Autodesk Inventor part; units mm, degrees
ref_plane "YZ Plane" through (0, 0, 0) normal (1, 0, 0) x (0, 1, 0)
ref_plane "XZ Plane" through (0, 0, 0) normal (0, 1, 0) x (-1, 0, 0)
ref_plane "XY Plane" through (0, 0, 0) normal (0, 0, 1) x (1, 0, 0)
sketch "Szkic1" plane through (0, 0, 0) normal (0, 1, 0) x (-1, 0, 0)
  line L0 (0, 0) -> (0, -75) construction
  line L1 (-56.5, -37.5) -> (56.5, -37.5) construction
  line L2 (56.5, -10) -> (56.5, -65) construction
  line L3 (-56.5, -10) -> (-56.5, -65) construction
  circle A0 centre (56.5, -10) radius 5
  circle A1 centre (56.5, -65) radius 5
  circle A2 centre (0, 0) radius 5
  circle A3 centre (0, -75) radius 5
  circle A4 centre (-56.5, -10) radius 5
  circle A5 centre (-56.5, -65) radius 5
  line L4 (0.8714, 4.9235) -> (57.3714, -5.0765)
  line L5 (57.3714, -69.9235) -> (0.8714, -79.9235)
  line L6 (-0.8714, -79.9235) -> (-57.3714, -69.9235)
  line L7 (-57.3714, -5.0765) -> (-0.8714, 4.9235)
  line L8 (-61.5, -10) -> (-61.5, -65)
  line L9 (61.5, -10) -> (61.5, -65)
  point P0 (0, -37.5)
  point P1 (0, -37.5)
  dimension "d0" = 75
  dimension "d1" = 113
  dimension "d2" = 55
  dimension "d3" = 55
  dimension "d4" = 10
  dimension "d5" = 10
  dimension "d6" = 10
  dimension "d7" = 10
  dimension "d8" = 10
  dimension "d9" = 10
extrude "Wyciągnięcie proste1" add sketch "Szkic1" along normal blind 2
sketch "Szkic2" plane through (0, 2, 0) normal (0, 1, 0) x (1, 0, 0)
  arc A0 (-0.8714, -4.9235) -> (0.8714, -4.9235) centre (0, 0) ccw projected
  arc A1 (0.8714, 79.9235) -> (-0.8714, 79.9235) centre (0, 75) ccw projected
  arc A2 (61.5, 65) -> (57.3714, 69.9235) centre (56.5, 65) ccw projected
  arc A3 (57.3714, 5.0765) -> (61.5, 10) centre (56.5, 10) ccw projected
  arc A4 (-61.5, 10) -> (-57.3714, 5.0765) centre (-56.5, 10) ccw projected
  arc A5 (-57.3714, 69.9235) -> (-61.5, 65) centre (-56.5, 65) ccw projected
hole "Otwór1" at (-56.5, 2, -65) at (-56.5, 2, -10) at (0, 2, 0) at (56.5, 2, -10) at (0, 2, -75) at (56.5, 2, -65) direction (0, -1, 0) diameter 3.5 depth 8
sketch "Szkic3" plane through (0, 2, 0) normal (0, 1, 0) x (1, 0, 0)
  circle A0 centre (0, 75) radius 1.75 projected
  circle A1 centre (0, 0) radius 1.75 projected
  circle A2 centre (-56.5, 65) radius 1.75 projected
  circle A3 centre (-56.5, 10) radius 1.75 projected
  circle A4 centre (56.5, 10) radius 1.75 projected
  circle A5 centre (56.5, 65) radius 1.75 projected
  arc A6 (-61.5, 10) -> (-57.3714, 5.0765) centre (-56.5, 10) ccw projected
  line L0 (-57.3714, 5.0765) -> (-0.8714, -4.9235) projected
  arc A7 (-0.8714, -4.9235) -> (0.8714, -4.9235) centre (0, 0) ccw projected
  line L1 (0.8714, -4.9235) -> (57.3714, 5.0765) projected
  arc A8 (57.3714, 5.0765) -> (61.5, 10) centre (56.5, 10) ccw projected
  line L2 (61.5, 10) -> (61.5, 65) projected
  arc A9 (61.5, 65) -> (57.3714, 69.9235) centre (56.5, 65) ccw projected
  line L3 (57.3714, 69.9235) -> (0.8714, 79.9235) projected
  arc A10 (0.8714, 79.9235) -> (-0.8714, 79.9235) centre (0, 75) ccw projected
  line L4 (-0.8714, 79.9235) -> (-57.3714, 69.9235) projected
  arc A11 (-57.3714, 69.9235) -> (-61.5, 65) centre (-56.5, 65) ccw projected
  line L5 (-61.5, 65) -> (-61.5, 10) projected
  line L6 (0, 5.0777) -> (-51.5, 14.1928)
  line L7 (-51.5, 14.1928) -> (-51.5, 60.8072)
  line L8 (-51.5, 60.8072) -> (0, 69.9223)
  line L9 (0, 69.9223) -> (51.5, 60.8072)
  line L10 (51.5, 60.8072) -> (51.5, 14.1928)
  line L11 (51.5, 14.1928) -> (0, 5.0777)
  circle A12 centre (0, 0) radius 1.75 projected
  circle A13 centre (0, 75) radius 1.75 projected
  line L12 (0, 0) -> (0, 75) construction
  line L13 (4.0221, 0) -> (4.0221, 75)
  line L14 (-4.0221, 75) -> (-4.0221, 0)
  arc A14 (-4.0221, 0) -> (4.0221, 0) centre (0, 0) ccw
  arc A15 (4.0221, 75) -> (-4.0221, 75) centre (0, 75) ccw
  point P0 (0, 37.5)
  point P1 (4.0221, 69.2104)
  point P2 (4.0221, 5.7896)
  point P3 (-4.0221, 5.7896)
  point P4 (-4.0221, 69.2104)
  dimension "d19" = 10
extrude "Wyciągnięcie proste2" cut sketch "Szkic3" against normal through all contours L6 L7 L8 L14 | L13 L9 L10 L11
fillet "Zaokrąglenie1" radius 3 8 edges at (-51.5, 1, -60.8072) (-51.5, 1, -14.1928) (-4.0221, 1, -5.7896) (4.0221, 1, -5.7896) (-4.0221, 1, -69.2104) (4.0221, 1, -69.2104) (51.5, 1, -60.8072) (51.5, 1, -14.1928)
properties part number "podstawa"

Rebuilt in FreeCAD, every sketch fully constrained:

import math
import FreeCAD as App
import Part
import Sketcher
from FreeCAD import Vector
Q = App.Units.Quantity


def edges_at(feature, points):
    """Names of the edges that pass closest to the given points."""
    edges = feature.Shape.Edges
    near = lambda p: min(range(len(edges)), key=lambda i: edges[i].distToShape(Part.Vertex(*p))[0])
    return sorted({f"Edge{near(p) + 1}" for p in points})

doc = App.newDocument("Part")
params = doc.addObject("Spreadsheet::Sheet", "Params")
for row, (alias, value) in enumerate([
    ("sketch1_radius", "5 mm"),
    ("sketch1_height", "55 mm"),
    ("pad1_length", "2 mm"),
    ("sketch2_diameter", "3.5 mm"),
    ("hole_diameter", "3.5 mm"),
    ("hole_depth", "8 mm"),
    ("fillet_radius", "3 mm"),
], start=1):
    params.set(f"A{row}", alias)
    params.set(f"B{row}", "=" + value)
    params.setAlias(f"B{row}", alias)

body = doc.addObject("PartDesign::Body", "Body")

# Sketch on XZ plane
sketch1 = body.newObject("Sketcher::SketchObject", "Sketch")
sketch1.AttachmentSupport = (doc.getObject("XZ_Plane"), [""])
sketch1.MapMode = "FlatFace"
sketch1.addGeometry(Part.ArcOfCircle(Part.Circle(Vector(-56.5, -10, 0), Vector(0, 0, 1), 5), math.radians(100.036723), math.radians(180)), False)
sketch1.addGeometry(Part.LineSegment(Vector(-57.3714, -5.0765, 0), Vector(-0.8714, 4.9235, 0)), False)
sketch1.addGeometry(Part.ArcOfCircle(Part.Circle(Vector(0, 0, 0), Vector(0, 0, 1), 5), math.radians(79.963277), math.radians(100.036723)), False)
sketch1.addGeometry(Part.LineSegment(Vector(0.8714, 4.9235, 0), Vector(57.3714, -5.0765, 0)), False)
sketch1.addGeometry(Part.ArcOfCircle(Part.Circle(Vector(56.5, -10, 0), Vector(0, 0, 1), 5), math.radians(0), math.radians(79.963277)), False)
sketch1.addGeometry(Part.LineSegment(Vector(61.5, -10, 0), Vector(61.5, -65, 0)), False)
sketch1.addGeometry(Part.ArcOfCircle(Part.Circle(Vector(56.5, -65, 0), Vector(0, 0, 1), 5), math.radians(-79.963277), math.radians(0)), False)
sketch1.addGeometry(Part.LineSegment(Vector(57.3714, -69.9235, 0), Vector(0.8714, -79.9235, 0)), False)
sketch1.addGeometry(Part.ArcOfCircle(Part.Circle(Vector(0, -75, 0), Vector(0, 0, 1), 5), math.radians(-100.036723), math.radians(-79.963277)), False)
sketch1.addGeometry(Part.LineSegment(Vector(-0.8714, -79.9235, 0), Vector(-57.3714, -69.9235, 0)), False)
sketch1.addGeometry(Part.ArcOfCircle(Part.Circle(Vector(-56.5, -65, 0), Vector(0, 0, 1), 5), math.radians(180), math.radians(259.963277)), False)
sketch1.addGeometry(Part.LineSegment(Vector(-61.5, -65, 0), Vector(-61.5, -10, 0)), False)
sketch1.addConstraint(Sketcher.Constraint("Tangent", 0, 1, 1, 1))
sketch1.addConstraint(Sketcher.Constraint("Tangent", 1, 2, 2, 2))
sketch1.addConstraint(Sketcher.Constraint("Tangent", 2, 1, 3, 1))
sketch1.addConstraint(Sketcher.Constraint("Tangent", 3, 2, 4, 2))
sketch1.addConstraint(Sketcher.Constraint("Tangent", 4, 1, 5, 1))
sketch1.addConstraint(Sketcher.Constraint("Tangent", 5, 2, 6, 2))
sketch1.addConstraint(Sketcher.Constraint("Tangent", 6, 1, 7, 1))
sketch1.addConstraint(Sketcher.Constraint("Tangent", 7, 2, 8, 2))
sketch1.addConstraint(Sketcher.Constraint("Tangent", 8, 1, 9, 1))
sketch1.addConstraint(Sketcher.Constraint("Tangent", 9, 2, 10, 2))
sketch1.addConstraint(Sketcher.Constraint("Tangent", 10, 1, 11, 1))
sketch1.addConstraint(Sketcher.Constraint("Tangent", 11, 2, 0, 2))
sketch1.addConstraint(Sketcher.Constraint("Vertical", 5))
sketch1.addConstraint(Sketcher.Constraint("Vertical", 11))
sketch1.addConstraint(Sketcher.Constraint("Coincident", 2, 3, -1, 1))
sketch1.addConstraint(Sketcher.Constraint("Equal", 0, 2))
sketch1.addConstraint(Sketcher.Constraint("Equal", 2, 4))
sketch1.addConstraint(Sketcher.Constraint("Equal", 4, 6))
sketch1.addConstraint(Sketcher.Constraint("Equal", 6, 8))
sketch1.addConstraint(Sketcher.Constraint("Equal", 8, 10))
sketch1.addConstraint(Sketcher.Constraint("Symmetric", 0, 3, 4, 3, -2))
sketch1.addConstraint(Sketcher.Constraint("Symmetric", 7, 2, 8, 1, -2))
sketch1.addConstraint(Sketcher.Constraint("Parallel", 1, 7))
sketch1.addConstraint(Sketcher.Constraint("Radius", 0, Q("5 mm")))
sketch1.addConstraint(Sketcher.Constraint("DistanceY", 5, 2, 5, 1, Q("55 mm")))
sketch1.addConstraint(Sketcher.Constraint("DistanceY", 0, 3, -1, 1, Q("10 mm")))
sketch1.addConstraint(Sketcher.Constraint("DistanceX", 0, 3, 4, 3, Q("113 mm")))
sketch1.setExpression("Constraints[23]", "Params.sketch1_radius")
sketch1.setExpression("Constraints[24]", "Params.sketch1_height")
pad1 = body.newObject("PartDesign::Pad", "Pad")
pad1.Profile = sketch1
pad1.setExpression("Length", "Params.pad1_length")
pad1.Reversed = True

# Sketch on XZ plane
sketch2 = body.newObject("Sketcher::SketchObject", "Sketch001")
sketch2.AttachmentSupport = (doc.getObject("XZ_Plane"), [""])
sketch2.MapMode = "FlatFace"
sketch2.AttachmentOffset = App.Placement(Vector(0, 0, -2), App.Rotation())
sketch2.addGeometry(Part.Circle(Vector(-56.5, -65, 0), Vector(0, 0, 1), 1.75), False)
sketch2.addGeometry(Part.Circle(Vector(-56.5, -10, 0), Vector(0, 0, 1), 1.75), False)
sketch2.addGeometry(Part.Circle(Vector(0, 0, 0), Vector(0, 0, 1), 1.75), False)
sketch2.addGeometry(Part.Circle(Vector(56.5, -10, 0), Vector(0, 0, 1), 1.75), False)
sketch2.addGeometry(Part.Circle(Vector(0, -75, 0), Vector(0, 0, 1), 1.75), False)
sketch2.addGeometry(Part.Circle(Vector(56.5, -65, 0), Vector(0, 0, 1), 1.75), False)
sketch2.addConstraint(Sketcher.Constraint("Coincident", 2, 3, -1, 1))
sketch2.addConstraint(Sketcher.Constraint("Equal", 0, 1))
sketch2.addConstraint(Sketcher.Constraint("Equal", 1, 2))
sketch2.addConstraint(Sketcher.Constraint("Equal", 2, 3))
sketch2.addConstraint(Sketcher.Constraint("Equal", 3, 4))
sketch2.addConstraint(Sketcher.Constraint("Equal", 4, 5))
sketch2.addConstraint(Sketcher.Constraint("Symmetric", 1, 3, 3, 3, -2))
sketch2.addConstraint(Sketcher.Constraint("Symmetric", 0, 3, 5, 3, -2))
sketch2.addConstraint(Sketcher.Constraint("PointOnObject", 4, 3, -2))
sketch2.addConstraint(Sketcher.Constraint("Vertical", 0, 3, 1, 3))
sketch2.addConstraint(Sketcher.Constraint("Diameter", 0, Q("3.5 mm")))
sketch2.addConstraint(Sketcher.Constraint("DistanceY", 0, 3, -1, 1, Q("65 mm")))
sketch2.addConstraint(Sketcher.Constraint("DistanceY", 1, 3, -1, 1, Q("10 mm")))
sketch2.addConstraint(Sketcher.Constraint("DistanceY", 4, 3, -1, 1, Q("75 mm")))
sketch2.addConstraint(Sketcher.Constraint("DistanceX", 1, 3, 3, 3, Q("113 mm")))
sketch2.setExpression("Constraints[10]", "Params.sketch2_diameter")
doc.recompute()
hole = body.newObject("PartDesign::Hole", "Hole")
hole.Profile = sketch2
hole.ThreadType = "None"
hole.setExpression("Diameter", "Params.hole_diameter")
hole.DepthType = "Dimension"
hole.setExpression("Depth", "Params.hole_depth")
hole.DrillPoint = "Flat"
hole.Reversed = True

# Sketch on XZ plane
sketch3 = body.newObject("Sketcher::SketchObject", "Sketch002")
sketch3.AttachmentSupport = (doc.getObject("XZ_Plane"), [""])
sketch3.MapMode = "FlatFace"
sketch3.AttachmentOffset = App.Placement(Vector(0, 0, -2), App.Rotation())
sketch3.addGeometry(Part.LineSegment(Vector(-51.5, -14.1928, 0), Vector(-4.0221, -5.78958, 0)), False)
sketch3.addGeometry(Part.LineSegment(Vector(-4.0221, -5.78958, 0), Vector(-4.0221, -69.21042, 0)), False)
sketch3.addGeometry(Part.LineSegment(Vector(-4.0221, -69.21042, 0), Vector(-51.5, -60.8072, 0)), False)
sketch3.addGeometry(Part.LineSegment(Vector(-51.5, -60.8072, 0), Vector(-51.5, -14.1928, 0)), False)
sketch3.addGeometry(Part.LineSegment(Vector(4.0221, -69.21042, 0), Vector(4.0221, -5.78958, 0)), False)
sketch3.addGeometry(Part.LineSegment(Vector(4.0221, -5.78958, 0), Vector(51.5, -14.1928, 0)), False)
sketch3.addGeometry(Part.LineSegment(Vector(51.5, -14.1928, 0), Vector(51.5, -60.8072, 0)), False)
sketch3.addGeometry(Part.LineSegment(Vector(51.5, -60.8072, 0), Vector(4.0221, -69.21042, 0)), False)
sketch3.addConstraint(Sketcher.Constraint("Coincident", 0, 2, 1, 1))
sketch3.addConstraint(Sketcher.Constraint("Coincident", 1, 2, 2, 1))
sketch3.addConstraint(Sketcher.Constraint("Coincident", 2, 2, 3, 1))
sketch3.addConstraint(Sketcher.Constraint("Coincident", 3, 2, 0, 1))
sketch3.addConstraint(Sketcher.Constraint("Coincident", 4, 2, 5, 1))
sketch3.addConstraint(Sketcher.Constraint("Coincident", 5, 2, 6, 1))
sketch3.addConstraint(Sketcher.Constraint("Coincident", 6, 2, 7, 1))
sketch3.addConstraint(Sketcher.Constraint("Coincident", 7, 2, 4, 1))
sketch3.addConstraint(Sketcher.Constraint("Vertical", 1))
sketch3.addConstraint(Sketcher.Constraint("Vertical", 3))
sketch3.addConstraint(Sketcher.Constraint("Vertical", 4))
sketch3.addConstraint(Sketcher.Constraint("Vertical", 6))
sketch3.addConstraint(Sketcher.Constraint("Symmetric", 0, 2, 4, 2, -2))
sketch3.addConstraint(Sketcher.Constraint("Symmetric", 3, 2, 5, 2, -2))
sketch3.addConstraint(Sketcher.Constraint("Parallel", 2, 5))
sketch3.addConstraint(Sketcher.Constraint("Parallel", 0, 7))
sketch3.addConstraint(Sketcher.Constraint("Horizontal", 2, 2, 6, 2))
sketch3.addConstraint(Sketcher.Constraint("DistanceX", 3, 2, 5, 2, Q("103 mm")))
sketch3.addConstraint(Sketcher.Constraint("DistanceY", 1, 2, 1, 1, Q("63.4208 mm")))
sketch3.addConstraint(Sketcher.Constraint("DistanceY", 3, 1, 3, 2, Q("46.6144 mm")))
sketch3.addConstraint(Sketcher.Constraint("DistanceX", 0, 2, -1, 1, Q("4.022 mm")))
sketch3.addConstraint(Sketcher.Constraint("DistanceY", 0, 2, -1, 1, Q("5.7896 mm")))
pocket1 = body.newObject("PartDesign::Pocket", "Pocket")
pocket1.Profile = sketch3
pocket1.Type = "ThroughAll"
pocket1.Reversed = True
doc.recompute()

fillet = body.newObject("PartDesign::Fillet", "Fillet")
fillet.Base = (pocket1, edges_at(pocket1, [
    (-51.5, 1, -60.807),
    (-51.5, 1, -14.193),
    (-4.022, 1, -5.79),
    (4.022, 1, -5.79),
    (-4.022, 1, -69.21),
    (4.022, 1, -69.21),
    (51.5, 1, -60.807),
    (51.5, 1, -14.193),
]))
fillet.setExpression("Radius", "Params.fillet_radius")

doc.recompute()
